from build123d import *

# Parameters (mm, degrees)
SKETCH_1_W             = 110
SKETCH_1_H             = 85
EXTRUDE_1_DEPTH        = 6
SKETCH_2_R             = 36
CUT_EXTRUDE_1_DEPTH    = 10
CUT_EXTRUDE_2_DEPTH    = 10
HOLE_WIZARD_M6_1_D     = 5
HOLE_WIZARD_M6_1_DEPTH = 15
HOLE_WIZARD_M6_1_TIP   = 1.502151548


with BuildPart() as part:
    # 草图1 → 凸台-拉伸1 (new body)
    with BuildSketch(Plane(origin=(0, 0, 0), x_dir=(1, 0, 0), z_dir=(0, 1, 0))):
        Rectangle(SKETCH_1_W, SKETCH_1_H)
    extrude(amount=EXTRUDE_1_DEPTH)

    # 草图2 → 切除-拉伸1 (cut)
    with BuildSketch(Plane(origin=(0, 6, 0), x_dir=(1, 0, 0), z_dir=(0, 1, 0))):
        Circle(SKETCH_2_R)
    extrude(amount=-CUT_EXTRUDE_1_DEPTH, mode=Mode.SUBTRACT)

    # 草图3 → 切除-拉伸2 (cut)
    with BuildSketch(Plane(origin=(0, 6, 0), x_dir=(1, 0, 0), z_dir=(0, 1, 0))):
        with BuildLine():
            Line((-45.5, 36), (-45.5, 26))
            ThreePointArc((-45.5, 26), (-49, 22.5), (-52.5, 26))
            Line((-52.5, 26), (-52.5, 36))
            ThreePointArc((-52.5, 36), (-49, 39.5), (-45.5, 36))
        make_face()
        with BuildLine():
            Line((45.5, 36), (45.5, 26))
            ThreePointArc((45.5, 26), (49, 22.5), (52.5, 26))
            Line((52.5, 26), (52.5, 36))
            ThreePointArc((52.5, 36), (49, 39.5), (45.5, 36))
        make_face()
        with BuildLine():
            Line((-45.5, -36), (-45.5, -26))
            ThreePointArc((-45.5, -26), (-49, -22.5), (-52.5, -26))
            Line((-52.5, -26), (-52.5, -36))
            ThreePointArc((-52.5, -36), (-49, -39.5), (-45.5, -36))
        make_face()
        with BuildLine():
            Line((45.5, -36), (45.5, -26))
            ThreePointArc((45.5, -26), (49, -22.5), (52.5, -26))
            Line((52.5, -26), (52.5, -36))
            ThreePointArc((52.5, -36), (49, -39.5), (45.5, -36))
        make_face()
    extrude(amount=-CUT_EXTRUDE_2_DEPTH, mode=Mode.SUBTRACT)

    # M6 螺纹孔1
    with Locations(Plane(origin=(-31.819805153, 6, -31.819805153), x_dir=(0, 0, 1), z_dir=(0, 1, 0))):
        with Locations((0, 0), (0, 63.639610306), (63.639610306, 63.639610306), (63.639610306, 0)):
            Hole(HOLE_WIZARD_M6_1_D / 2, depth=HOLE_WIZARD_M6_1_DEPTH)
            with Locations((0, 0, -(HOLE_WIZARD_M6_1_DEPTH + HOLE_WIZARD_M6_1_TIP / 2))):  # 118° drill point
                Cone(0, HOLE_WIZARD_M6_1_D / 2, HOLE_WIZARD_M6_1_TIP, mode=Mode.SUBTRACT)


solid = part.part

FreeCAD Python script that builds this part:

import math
import FreeCAD as App
import Part
import Sketcher
from FreeCAD import Vector


def add_polygon(sketch, points):
    """Adds a closed chain of lines whose ends are joined by coincident constraints."""
    first, n = sketch.GeometryCount, len(points)
    for a, b in zip(points, points[1:] + points[:1]):
        sketch.addGeometry(Part.LineSegment(App.Vector(*a, 0), App.Vector(*b, 0)), False)
    for i in range(n):
        sketch.addConstraint(Sketcher.Constraint("Coincident", first + i, 2, first + (i + 1) % n, 1))

doc = App.newDocument("Part")
params = doc.addObject("Spreadsheet::Sheet", "Params")
for row, (alias, value) in enumerate([
    ("sketch1_width", "110 mm"),
    ("sketch1_height", "85 mm"),
    ("pad1_length", "6 mm"),
    ("sketch2_diameter", "72 mm"),
    ("pocket1_length", "10 mm"),
    ("sketch3_radius", "3.5 mm"),
    ("sketch3_height", "10 mm"),
    ("pocket2_length", "10 mm"),
    ("sketch4_diameter", "5 mm"),
    ("hole_diameter", "5 mm"),
    ("hole_depth", "15 mm"),
], start=1):
    params.set(f"A{row}", alias)
    params.set(f"B{row}", "=" + value)
    params.setAlias(f"B{row}", alias)

body = doc.addObject("PartDesign::Body", "Body")

sketch1 = body.newObject("Sketcher::SketchObject", "Sketch")
sketch1.AttachmentSupport = (doc.getObject("XZ_Plane"), [""])
sketch1.MapMode = "FlatFace"
add_polygon(sketch1, [(-55, -42), (-55, 42), (55, 42), (55, -42)])
sketch1.addConstraint([
    Sketcher.Constraint("Vertical", 0),
    Sketcher.Constraint("Horizontal", 1),
    Sketcher.Constraint("Vertical", 2),
    Sketcher.Constraint("Horizontal", 3),
    Sketcher.Constraint("Symmetric", 0, 2, 2, 2, -1, 1),
    Sketcher.Constraint("DistanceX", 1, 1, 1, 2, 110.0),
    Sketcher.Constraint("DistanceY", 0, 1, 0, 2, 85.0),
])
sketch1.setExpression("Constraints[9]", "Params.sketch1_width")
sketch1.setExpression("Constraints[10]", "Params.sketch1_height")
pad1 = body.newObject("PartDesign::Pad", "Pad")
pad1.Profile = sketch1
pad1.setExpression("Length", "Params.pad1_length")
pad1.Reversed = True

sketch2 = body.newObject("Sketcher::SketchObject", "Sketch001")
sketch2.AttachmentSupport = (doc.getObject("XZ_Plane"), [""])
sketch2.MapMode = "FlatFace"
sketch2.AttachmentOffset = App.Placement(Vector(0, 0, -6), App.Rotation())
sketch2.addGeometry(Part.Circle(Vector(0, 0, 0), Vector(0, 0, 1), 36), False)
sketch2.addConstraint([
    Sketcher.Constraint("Coincident", 0, 3, -1, 1),
    Sketcher.Constraint("Diameter", 0, 72.0),
])
sketch2.setExpression("Constraints[1]", "Params.sketch2_diameter")
pocket1 = body.newObject("PartDesign::Pocket", "Pocket")
pocket1.Profile = sketch2
pocket1.setExpression("Length", "Params.pocket1_length")
pocket1.Reversed = True

sketch3 = body.newObject("Sketcher::SketchObject", "Sketch002")
sketch3.AttachmentSupport = (doc.getObject("XZ_Plane"), [""])
sketch3.MapMode = "FlatFace"
sketch3.AttachmentOffset = App.Placement(Vector(0, 0, -6), App.Rotation())
sketch3.addGeometry([
    Part.LineSegment(Vector(-45.5, -26, 0), Vector(-45.5, -36, 0)),
    Part.ArcOfCircle(Part.Circle(Vector(-49, -36, 0), Vector(0, 0, 1), 3.5), math.radians(180), math.radians(360)),
    Part.LineSegment(Vector(-52.5, -36, 0), Vector(-52.5, -26, 0)),
    Part.ArcOfCircle(Part.Circle(Vector(-49, -26, 0), Vector(0, 0, 1), 3.5), math.radians(0), math.radians(180)),
    Part.LineSegment(Vector(45.5, -36, 0), Vector(45.5, -26, 0)),
    Part.ArcOfCircle(Part.Circle(Vector(49, -26, 0), Vector(0, 0, 1), 3.5), math.radians(0), math.radians(180)),
    Part.LineSegment(Vector(52.5, -26, 0), Vector(52.5, -36, 0)),
    Part.ArcOfCircle(Part.Circle(Vector(49, -36, 0), Vector(0, 0, 1), 3.5), math.radians(180), math.radians(360)),
    Part.LineSegment(Vector(-45.5, 36, 0), Vector(-45.5, 26, 0)),
    Part.ArcOfCircle(Part.Circle(Vector(-49, 26, 0), Vector(0, 0, 1), 3.5), math.radians(180), math.radians(360)),
    Part.LineSegment(Vector(-52.5, 26, 0), Vector(-52.5, 36, 0)),
    Part.ArcOfCircle(Part.Circle(Vector(-49, 36, 0), Vector(0, 0, 1), 3.5), math.radians(0), math.radians(180)),
    Part.LineSegment(Vector(45.5, 26, 0), Vector(45.5, 36, 0)),
    Part.ArcOfCircle(Part.Circle(Vector(49, 36, 0), Vector(0, 0, 1), 3.5), math.radians(0), math.radians(180)),
    Part.LineSegment(Vector(52.5, 36, 0), Vector(52.5, 26, 0)),
    Part.ArcOfCircle(Part.Circle(Vector(49, 26, 0), Vector(0, 0, 1), 3.5), math.radians(180), math.radians(360)),
], False)
sketch3.addConstraint([
    Sketcher.Constraint("Tangent", 0, 2, 1, 2),
    Sketcher.Constraint("Tangent", 1, 1, 2, 1),
    Sketcher.Constraint("Tangent", 2, 2, 3, 2),
    Sketcher.Constraint("Tangent", 3, 1, 0, 1),
    Sketcher.Constraint("Tangent", 4, 2, 5, 2),
    Sketcher.Constraint("Tangent", 5, 1, 6, 1),
    Sketcher.Constraint("Tangent", 6, 2, 7, 2),
    Sketcher.Constraint("Tangent", 7, 1, 4, 1),
    Sketcher.Constraint("Tangent", 8, 2, 9, 2),
    Sketcher.Constraint("Tangent", 9, 1, 10, 1),
    Sketcher.Constraint("Tangent", 10, 2, 11, 2),
    Sketcher.Constraint("Tangent", 11, 1, 8, 1),
    Sketcher.Constraint("Tangent", 12, 2, 13, 2),
    Sketcher.Constraint("Tangent", 13, 1, 14, 1),
    Sketcher.Constraint("Tangent", 14, 2, 15, 2),
    Sketcher.Constraint("Tangent", 15, 1, 12, 1),
    Sketcher.Constraint("Vertical", 0),
    Sketcher.Constraint("Vertical", 2),
    Sketcher.Constraint("Vertical", 4),
    Sketcher.Constraint("Vertical", 6),
    Sketcher.Constraint("Vertical", 8),
    Sketcher.Constraint("Vertical", 10),
    Sketcher.Constraint("Vertical", 12),
    Sketcher.Constraint("Vertical", 14),
    Sketcher.Constraint("Equal", 3, 5),
    Sketcher.Constraint("Equal", 7, 9),
    Sketcher.Constraint("Equal", 11, 13),
    Sketcher.Constraint("Symmetric", 5, 3, 9, 3, -1, 1),
    Sketcher.Constraint("Symmetric", 1, 3, 13, 3, -1, 1),
    Sketcher.Constraint("Symmetric", 3, 3, 5, 3, -2),
    Sketcher.Constraint("Horizontal", 1, 3, 7, 3),
    Sketcher.Constraint("Horizontal", 11, 3, 13, 3),
    Sketcher.Constraint("Horizontal", 9, 3, 15, 3),
    Sketcher.Constraint("Radius", 1, 3.5),
    Sketcher.Constraint("DistanceY", 0, 2, 0, 1, 10.0),
    Sketcher.Constraint("DistanceX", 1, 3, -1, 1, 49.0),
    Sketcher.Constraint("DistanceY", 1, 3, -1, 1, 36.0),
])
sketch3.setExpression("Constraints[33]", "Params.sketch3_radius")
sketch3.setExpression("Constraints[34]", "Params.sketch3_height")
pocket2 = body.newObject("PartDesign::Pocket", "Pocket001")
pocket2.Profile = sketch3
pocket2.setExpression("Length", "Params.pocket2_length")
pocket2.Reversed = True

sketch4 = body.newObject("Sketcher::SketchObject", "Sketch003")
sketch4.AttachmentSupport = (doc.getObject("XZ_Plane"), [""])
sketch4.MapMode = "FlatFace"
sketch4.AttachmentOffset = App.Placement(Vector(0, 0, -6), App.Rotation())
sketch4.addGeometry([
    Part.Circle(Vector(-31.8, -31.8, 0), Vector(0, 0, 1), 2.5),
    Part.Circle(Vector(31.8, -31.8, 0), Vector(0, 0, 1), 2.5),
    Part.Circle(Vector(31.8, 31.8, 0), Vector(0, 0, 1), 2.5),
    Part.Circle(Vector(-31.8, 31.8, 0), Vector(0, 0, 1), 2.5),
], False)
sketch4.addConstraint([
    Sketcher.Constraint("Equal", 0, 1),
    Sketcher.Constraint("Equal", 1, 2),
    Sketcher.Constraint("Equal", 2, 3),
    Sketcher.Constraint("Symmetric", 0, 3, 2, 3, -1, 1),
    Sketcher.Constraint("Symmetric", 1, 3, 3, 3, -1, 1),
    Sketcher.Constraint("Symmetric", 0, 3, 1, 3, -2),
    Sketcher.Constraint("Diameter", 0, 5.0),
    Sketcher.Constraint("DistanceX", 0, 3, 1, 3, 63.63961),
    Sketcher.Constraint("DistanceY", 1, 3, 2, 3, 63.63961),
])
sketch4.setExpression("Constraints[6]", "Params.sketch4_diameter")
doc.recompute()
hole = body.newObject("PartDesign::Hole", "Hole")
hole.Profile = sketch4
hole.ThreadType = "None"
hole.setExpression("Diameter", "Params.hole_diameter")
hole.DepthType = "Dimension"
hole.setExpression("Depth", "Params.hole_depth")
hole.DrillPoint = "Angled"
hole.DrillPointAngle = 118
hole.Reversed = True

doc.recompute()
